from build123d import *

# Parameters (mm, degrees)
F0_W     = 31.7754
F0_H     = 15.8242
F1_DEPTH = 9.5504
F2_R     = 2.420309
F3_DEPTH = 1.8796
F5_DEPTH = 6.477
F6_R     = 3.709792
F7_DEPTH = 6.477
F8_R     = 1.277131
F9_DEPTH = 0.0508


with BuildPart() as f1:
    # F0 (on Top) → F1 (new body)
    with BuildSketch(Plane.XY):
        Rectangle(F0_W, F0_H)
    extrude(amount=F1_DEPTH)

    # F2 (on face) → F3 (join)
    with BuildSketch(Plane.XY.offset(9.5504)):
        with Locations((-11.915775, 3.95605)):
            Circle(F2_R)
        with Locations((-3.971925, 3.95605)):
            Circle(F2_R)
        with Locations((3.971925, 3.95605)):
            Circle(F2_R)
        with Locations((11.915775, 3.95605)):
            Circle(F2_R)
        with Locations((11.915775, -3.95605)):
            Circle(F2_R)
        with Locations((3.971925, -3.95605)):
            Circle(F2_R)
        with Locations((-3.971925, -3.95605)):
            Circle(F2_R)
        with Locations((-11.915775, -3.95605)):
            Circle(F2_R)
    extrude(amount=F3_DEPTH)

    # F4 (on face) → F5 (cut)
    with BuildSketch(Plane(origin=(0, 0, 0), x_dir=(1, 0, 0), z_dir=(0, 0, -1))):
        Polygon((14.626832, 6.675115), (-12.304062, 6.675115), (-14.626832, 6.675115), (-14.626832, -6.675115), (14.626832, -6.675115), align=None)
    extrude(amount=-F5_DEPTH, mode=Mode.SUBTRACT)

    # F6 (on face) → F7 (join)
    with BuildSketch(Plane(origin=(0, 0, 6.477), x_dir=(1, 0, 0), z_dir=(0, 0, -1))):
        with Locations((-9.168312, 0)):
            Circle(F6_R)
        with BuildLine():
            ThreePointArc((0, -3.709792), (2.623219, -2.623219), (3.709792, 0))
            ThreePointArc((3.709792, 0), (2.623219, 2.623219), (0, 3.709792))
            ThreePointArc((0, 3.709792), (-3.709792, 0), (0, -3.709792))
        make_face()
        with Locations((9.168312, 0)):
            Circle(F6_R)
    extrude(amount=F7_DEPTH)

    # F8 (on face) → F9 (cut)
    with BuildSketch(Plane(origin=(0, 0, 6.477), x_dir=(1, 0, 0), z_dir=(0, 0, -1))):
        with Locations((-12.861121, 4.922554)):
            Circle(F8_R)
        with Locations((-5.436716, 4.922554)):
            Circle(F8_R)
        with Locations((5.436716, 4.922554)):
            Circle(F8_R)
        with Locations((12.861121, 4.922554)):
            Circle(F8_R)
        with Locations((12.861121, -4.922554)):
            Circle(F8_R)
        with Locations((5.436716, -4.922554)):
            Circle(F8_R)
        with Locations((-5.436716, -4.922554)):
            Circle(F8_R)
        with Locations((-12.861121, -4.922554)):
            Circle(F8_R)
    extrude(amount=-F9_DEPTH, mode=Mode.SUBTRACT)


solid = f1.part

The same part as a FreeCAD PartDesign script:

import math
import FreeCAD as App
import Part
import Sketcher

V = App.Vector
Q = App.Units.Quantity


def add_polygon(sketch, points):
    """Adds a closed chain of lines whose ends are joined by coincident constraints."""
    first, n = sketch.GeometryCount, len(points)
    for a, b in zip(points, points[1:] + points[:1]):
        sketch.addGeometry(Part.LineSegment(App.Vector(*a, 0), App.Vector(*b, 0)), False)
    for i in range(n):
        sketch.addConstraint(Sketcher.Constraint("Coincident", first + i, 2, first + (i + 1) % n, 1))

doc = App.newDocument("Part")
body = doc.addObject("PartDesign::Body", "Body")

# Sketch on XY plane
sketch1 = body.newObject("Sketcher::SketchObject", "Sketch")
sketch1.AttachmentSupport = (doc.getObject("XY_Plane"), [""])
sketch1.MapMode = "FlatFace"
add_polygon(sketch1, [(-16, 8), (-16, -8), (16, -8), (16, 8)])  # lines 0-3
sketch1.addConstraint(Sketcher.Constraint("Vertical", 0))
sketch1.addConstraint(Sketcher.Constraint("Horizontal", 1))
sketch1.addConstraint(Sketcher.Constraint("Vertical", 2))
sketch1.addConstraint(Sketcher.Constraint("Horizontal", 3))
sketch1.addConstraint(Sketcher.Constraint("Symmetric", 0, 2, 2, 2, -1, 1))
sketch1.addConstraint(Sketcher.Constraint("DistanceX", 1, 1, 1, 2, Q("1.251 in")))
sketch1.addConstraint(Sketcher.Constraint("DistanceY", 0, 2, 0, 1, Q("0.623 in")))
pad1 = body.newObject("PartDesign::Pad", "Pad")
pad1.Profile = sketch1
pad1.Length = Q("0.376 in")

# Sketch on XY plane
sketch2 = body.newObject("Sketcher::SketchObject", "Sketch001")
sketch2.AttachmentSupport = (doc.getObject("XY_Plane"), [""])
sketch2.MapMode = "FlatFace"
sketch2.AttachmentOffset = App.Placement(V(0, 0, 0.376 * 25.4), App.Rotation())
sketch2.addGeometry(Part.Circle(V(-11.9, 4, 0), V(0, 0, 1), 2.4), False)
sketch2.addGeometry(Part.Circle(V(-4, 4, 0), V(0, 0, 1), 2.4), False)
sketch2.addGeometry(Part.Circle(V(4, 4, 0), V(0, 0, 1), 2.4), False)
sketch2.addGeometry(Part.Circle(V(11.9, 4, 0), V(0, 0, 1), 2.4), False)
sketch2.addGeometry(Part.Circle(V(11.9, -4, 0), V(0, 0, 1), 2.4), False)
sketch2.addGeometry(Part.Circle(V(4, -4, 0), V(0, 0, 1), 2.4), False)
sketch2.addGeometry(Part.Circle(V(-4, -4, 0), V(0, 0, 1), 2.4), False)
sketch2.addGeometry(Part.Circle(V(-11.9, -4, 0), V(0, 0, 1), 2.4), False)
sketch2.addConstraint(Sketcher.Constraint("Equal", 0, 1))
sketch2.addConstraint(Sketcher.Constraint("Equal", 1, 2))
sketch2.addConstraint(Sketcher.Constraint("Equal", 2, 3))
sketch2.addConstraint(Sketcher.Constraint("Equal", 3, 4))
sketch2.addConstraint(Sketcher.Constraint("Equal", 4, 5))
sketch2.addConstraint(Sketcher.Constraint("Equal", 5, 6))
sketch2.addConstraint(Sketcher.Constraint("Equal", 6, 7))
sketch2.addConstraint(Sketcher.Constraint("Symmetric", 0, 3, 4, 3, -1, 1))
sketch2.addConstraint(Sketcher.Constraint("Symmetric", 1, 3, 5, 3, -1, 1))
sketch2.addConstraint(Sketcher.Constraint("Symmetric", 2, 3, 6, 3, -1, 1))
sketch2.addConstraint(Sketcher.Constraint("Symmetric", 3, 3, 7, 3, -1, 1))
sketch2.addConstraint(Sketcher.Constraint("Symmetric", 1, 3, 2, 3, -2))
sketch2.addConstraint(Sketcher.Constraint("Symmetric", 0, 3, 3, 3, -2))
sketch2.addConstraint(Sketcher.Constraint("Horizontal", 0, 3, 1, 3))
sketch2.addConstraint(Sketcher.Constraint("Diameter", 0, Q("4.840618 mm")))
sketch2.addConstraint(Sketcher.Constraint("DistanceX", 0, 3, 2, 3, Q("0.6255 in")))
sketch2.addConstraint(Sketcher.Constraint("DistanceY", 4, 3, 3, 3, Q("0.3115 in")))
sketch2.addConstraint(Sketcher.Constraint("DistanceX", 0, 3, 1, 3, Q("7.94385 mm")))
pad2 = body.newObject("PartDesign::Pad", "Pad001")
pad2.Profile = sketch2
pad2.Length = Q("0.074 in")

# Sketch on XY plane
sketch3 = body.newObject("Sketcher::SketchObject", "Sketch002")
sketch3.AttachmentSupport = (doc.getObject("XY_Plane"), [""])
sketch3.MapMode = "FlatFace"
add_polygon(sketch3, [(15, -7), (-15, -7), (-15, 7), (15, 7)])  # lines 0-3
sketch3.addConstraint(Sketcher.Constraint("Horizontal", 0))
sketch3.addConstraint(Sketcher.Constraint("Vertical", 1))
sketch3.addConstraint(Sketcher.Constraint("Horizontal", 2))
sketch3.addConstraint(Sketcher.Constraint("Vertical", 3))
sketch3.addConstraint(Sketcher.Constraint("Symmetric", 0, 2, 2, 2, -1, 1))
sketch3.addConstraint(Sketcher.Constraint("DistanceY", 0, 2, -1, 1, Q("0.2627998 in")))
sketch3.addConstraint(Sketcher.Constraint("DistanceX", 0, 2, 0, 1, Q("29.253664 mm")))
pocket1 = body.newObject("PartDesign::Pocket", "Pocket")
pocket1.Profile = sketch3
pocket1.Length = Q("0.255 in")
pocket1.Reversed = True

# Sketch on XY plane
sketch4 = body.newObject("Sketcher::SketchObject", "Sketch003")
sketch4.AttachmentSupport = (doc.getObject("XY_Plane"), [""])
sketch4.MapMode = "FlatFace"
sketch4.AttachmentOffset = App.Placement(V(0, 0, 0.255 * 25.4), App.Rotation())
sketch4.addGeometry(Part.Circle(V(-9.2, 0, 0), V(0, 0, 1), 3.7), False)
sketch4.addGeometry(Part.ArcOfCircle(Part.Circle(V(0, 0, 0), V(0, 0, 1), 3.7), math.radians(0), math.radians(90)), False)
sketch4.addGeometry(Part.ArcOfCircle(Part.Circle(V(0, 0, 0), V(0, 0, 1), 3.7), math.radians(-90), math.radians(0)), False)
sketch4.addGeometry(Part.ArcOfCircle(Part.Circle(V(0, 0, 0), V(0, 0, 1), 3.7), math.radians(90), math.radians(270)), False)
sketch4.addGeometry(Part.Circle(V(9.2, 0, 0), V(0, 0, 1), 3.7), False)
sketch4.addConstraint(Sketcher.Constraint("Tangent", 1, 1, 2, 2))
sketch4.addConstraint(Sketcher.Constraint("Tangent", 2, 1, 3, 2))
sketch4.addConstraint(Sketcher.Constraint("Tangent", 3, 1, 1, 2))
sketch4.addConstraint(Sketcher.Constraint("Coincident", 1, 3, -1, 1))
sketch4.addConstraint(Sketcher.Constraint("Equal", 0, 1))
sketch4.addConstraint(Sketcher.Constraint("Equal", 3, 4))
sketch4.addConstraint(Sketcher.Constraint("Symmetric", 0, 3, 4, 3, -1, 1))
sketch4.addConstraint(Sketcher.Constraint("PointOnObject", 0, 3, -1))
sketch4.addConstraint(Sketcher.Constraint("PointOnObject", 1, 1, -1))
sketch4.addConstraint(Sketcher.Constraint("PointOnObject", 2, 1, -2))
sketch4.addConstraint(Sketcher.Constraint("PointOnObject", 3, 1, -2))
sketch4.addConstraint(Sketcher.Constraint("Diameter", 0, Q("7.419584 mm")))
sketch4.addConstraint(Sketcher.Constraint("DistanceX", 0, 3, 1, 3, Q("9.168312 mm")))
pad3 = body.newObject("PartDesign::Pad", "Pad002")
pad3.Profile = sketch4
pad3.Length = Q("0.255 in")
pad3.Reversed = True

# Sketch on XY plane
sketch5 = body.newObject("Sketcher::SketchObject", "Sketch004")
sketch5.AttachmentSupport = (doc.getObject("XY_Plane"), [""])
sketch5.MapMode = "FlatFace"
sketch5.AttachmentOffset = App.Placement(V(0, 0, 0.255 * 25.4), App.Rotation())
sketch5.addGeometry(Part.Circle(V(-12.9, -4.9, 0), V(0, 0, 1), 1.3), False)
sketch5.addGeometry(Part.Circle(V(-5.4, -4.9, 0), V(0, 0, 1), 1.3), False)
sketch5.addGeometry(Part.Circle(V(5.4, -4.9, 0), V(0, 0, 1), 1.3), False)
sketch5.addGeometry(Part.Circle(V(12.9, -4.9, 0), V(0, 0, 1), 1.3), False)
sketch5.addGeometry(Part.Circle(V(12.9, 4.9, 0), V(0, 0, 1), 1.3), False)
sketch5.addGeometry(Part.Circle(V(5.4, 4.9, 0), V(0, 0, 1), 1.3), False)
sketch5.addGeometry(Part.Circle(V(-5.4, 4.9, 0), V(0, 0, 1), 1.3), False)
sketch5.addGeometry(Part.Circle(V(-12.9, 4.9, 0), V(0, 0, 1), 1.3), False)
sketch5.addConstraint(Sketcher.Constraint("Equal", 0, 1))
sketch5.addConstraint(Sketcher.Constraint("Equal", 1, 2))
sketch5.addConstraint(Sketcher.Constraint("Equal", 2, 3))
sketch5.addConstraint(Sketcher.Constraint("Equal", 3, 4))
sketch5.addConstraint(Sketcher.Constraint("Equal", 4, 5))
sketch5.addConstraint(Sketcher.Constraint("Equal", 5, 6))
sketch5.addConstraint(Sketcher.Constraint("Equal", 6, 7))
sketch5.addConstraint(Sketcher.Constraint("Symmetric", 0, 3, 4, 3, -1, 1))
sketch5.addConstraint(Sketcher.Constraint("Symmetric", 1, 3, 5, 3, -1, 1))
sketch5.addConstraint(Sketcher.Constraint("Symmetric", 2, 3, 6, 3, -1, 1))
sketch5.addConstraint(Sketcher.Constraint("Symmetric", 3, 3, 7, 3, -1, 1))
sketch5.addConstraint(Sketcher.Constraint("Symmetric", 1, 3, 2, 3, -2))
sketch5.addConstraint(Sketcher.Constraint("Symmetric", 0, 3, 3, 3, -2))
sketch5.addConstraint(Sketcher.Constraint("Horizontal", 0, 3, 1, 3))
sketch5.addConstraint(Sketcher.Constraint("Diameter", 0, Q("2.554262 mm")))
sketch5.addConstraint(Sketcher.Constraint("DistanceX", 0, 3, -1, 1, Q("12.861121 mm")))
sketch5.addConstraint(Sketcher.Constraint("DistanceX", 1, 3, 2, 3, Q("10.873432 mm")))
sketch5.addConstraint(Sketcher.Constraint("DistanceY", 0, 3, -1, 1, Q("4.922554 mm")))
pocket2 = body.newObject("PartDesign::Pocket", "Pocket001")
pocket2.Profile = sketch5
pocket2.Length = Q("0.002 in")
pocket2.Reversed = True

doc.recompute()
